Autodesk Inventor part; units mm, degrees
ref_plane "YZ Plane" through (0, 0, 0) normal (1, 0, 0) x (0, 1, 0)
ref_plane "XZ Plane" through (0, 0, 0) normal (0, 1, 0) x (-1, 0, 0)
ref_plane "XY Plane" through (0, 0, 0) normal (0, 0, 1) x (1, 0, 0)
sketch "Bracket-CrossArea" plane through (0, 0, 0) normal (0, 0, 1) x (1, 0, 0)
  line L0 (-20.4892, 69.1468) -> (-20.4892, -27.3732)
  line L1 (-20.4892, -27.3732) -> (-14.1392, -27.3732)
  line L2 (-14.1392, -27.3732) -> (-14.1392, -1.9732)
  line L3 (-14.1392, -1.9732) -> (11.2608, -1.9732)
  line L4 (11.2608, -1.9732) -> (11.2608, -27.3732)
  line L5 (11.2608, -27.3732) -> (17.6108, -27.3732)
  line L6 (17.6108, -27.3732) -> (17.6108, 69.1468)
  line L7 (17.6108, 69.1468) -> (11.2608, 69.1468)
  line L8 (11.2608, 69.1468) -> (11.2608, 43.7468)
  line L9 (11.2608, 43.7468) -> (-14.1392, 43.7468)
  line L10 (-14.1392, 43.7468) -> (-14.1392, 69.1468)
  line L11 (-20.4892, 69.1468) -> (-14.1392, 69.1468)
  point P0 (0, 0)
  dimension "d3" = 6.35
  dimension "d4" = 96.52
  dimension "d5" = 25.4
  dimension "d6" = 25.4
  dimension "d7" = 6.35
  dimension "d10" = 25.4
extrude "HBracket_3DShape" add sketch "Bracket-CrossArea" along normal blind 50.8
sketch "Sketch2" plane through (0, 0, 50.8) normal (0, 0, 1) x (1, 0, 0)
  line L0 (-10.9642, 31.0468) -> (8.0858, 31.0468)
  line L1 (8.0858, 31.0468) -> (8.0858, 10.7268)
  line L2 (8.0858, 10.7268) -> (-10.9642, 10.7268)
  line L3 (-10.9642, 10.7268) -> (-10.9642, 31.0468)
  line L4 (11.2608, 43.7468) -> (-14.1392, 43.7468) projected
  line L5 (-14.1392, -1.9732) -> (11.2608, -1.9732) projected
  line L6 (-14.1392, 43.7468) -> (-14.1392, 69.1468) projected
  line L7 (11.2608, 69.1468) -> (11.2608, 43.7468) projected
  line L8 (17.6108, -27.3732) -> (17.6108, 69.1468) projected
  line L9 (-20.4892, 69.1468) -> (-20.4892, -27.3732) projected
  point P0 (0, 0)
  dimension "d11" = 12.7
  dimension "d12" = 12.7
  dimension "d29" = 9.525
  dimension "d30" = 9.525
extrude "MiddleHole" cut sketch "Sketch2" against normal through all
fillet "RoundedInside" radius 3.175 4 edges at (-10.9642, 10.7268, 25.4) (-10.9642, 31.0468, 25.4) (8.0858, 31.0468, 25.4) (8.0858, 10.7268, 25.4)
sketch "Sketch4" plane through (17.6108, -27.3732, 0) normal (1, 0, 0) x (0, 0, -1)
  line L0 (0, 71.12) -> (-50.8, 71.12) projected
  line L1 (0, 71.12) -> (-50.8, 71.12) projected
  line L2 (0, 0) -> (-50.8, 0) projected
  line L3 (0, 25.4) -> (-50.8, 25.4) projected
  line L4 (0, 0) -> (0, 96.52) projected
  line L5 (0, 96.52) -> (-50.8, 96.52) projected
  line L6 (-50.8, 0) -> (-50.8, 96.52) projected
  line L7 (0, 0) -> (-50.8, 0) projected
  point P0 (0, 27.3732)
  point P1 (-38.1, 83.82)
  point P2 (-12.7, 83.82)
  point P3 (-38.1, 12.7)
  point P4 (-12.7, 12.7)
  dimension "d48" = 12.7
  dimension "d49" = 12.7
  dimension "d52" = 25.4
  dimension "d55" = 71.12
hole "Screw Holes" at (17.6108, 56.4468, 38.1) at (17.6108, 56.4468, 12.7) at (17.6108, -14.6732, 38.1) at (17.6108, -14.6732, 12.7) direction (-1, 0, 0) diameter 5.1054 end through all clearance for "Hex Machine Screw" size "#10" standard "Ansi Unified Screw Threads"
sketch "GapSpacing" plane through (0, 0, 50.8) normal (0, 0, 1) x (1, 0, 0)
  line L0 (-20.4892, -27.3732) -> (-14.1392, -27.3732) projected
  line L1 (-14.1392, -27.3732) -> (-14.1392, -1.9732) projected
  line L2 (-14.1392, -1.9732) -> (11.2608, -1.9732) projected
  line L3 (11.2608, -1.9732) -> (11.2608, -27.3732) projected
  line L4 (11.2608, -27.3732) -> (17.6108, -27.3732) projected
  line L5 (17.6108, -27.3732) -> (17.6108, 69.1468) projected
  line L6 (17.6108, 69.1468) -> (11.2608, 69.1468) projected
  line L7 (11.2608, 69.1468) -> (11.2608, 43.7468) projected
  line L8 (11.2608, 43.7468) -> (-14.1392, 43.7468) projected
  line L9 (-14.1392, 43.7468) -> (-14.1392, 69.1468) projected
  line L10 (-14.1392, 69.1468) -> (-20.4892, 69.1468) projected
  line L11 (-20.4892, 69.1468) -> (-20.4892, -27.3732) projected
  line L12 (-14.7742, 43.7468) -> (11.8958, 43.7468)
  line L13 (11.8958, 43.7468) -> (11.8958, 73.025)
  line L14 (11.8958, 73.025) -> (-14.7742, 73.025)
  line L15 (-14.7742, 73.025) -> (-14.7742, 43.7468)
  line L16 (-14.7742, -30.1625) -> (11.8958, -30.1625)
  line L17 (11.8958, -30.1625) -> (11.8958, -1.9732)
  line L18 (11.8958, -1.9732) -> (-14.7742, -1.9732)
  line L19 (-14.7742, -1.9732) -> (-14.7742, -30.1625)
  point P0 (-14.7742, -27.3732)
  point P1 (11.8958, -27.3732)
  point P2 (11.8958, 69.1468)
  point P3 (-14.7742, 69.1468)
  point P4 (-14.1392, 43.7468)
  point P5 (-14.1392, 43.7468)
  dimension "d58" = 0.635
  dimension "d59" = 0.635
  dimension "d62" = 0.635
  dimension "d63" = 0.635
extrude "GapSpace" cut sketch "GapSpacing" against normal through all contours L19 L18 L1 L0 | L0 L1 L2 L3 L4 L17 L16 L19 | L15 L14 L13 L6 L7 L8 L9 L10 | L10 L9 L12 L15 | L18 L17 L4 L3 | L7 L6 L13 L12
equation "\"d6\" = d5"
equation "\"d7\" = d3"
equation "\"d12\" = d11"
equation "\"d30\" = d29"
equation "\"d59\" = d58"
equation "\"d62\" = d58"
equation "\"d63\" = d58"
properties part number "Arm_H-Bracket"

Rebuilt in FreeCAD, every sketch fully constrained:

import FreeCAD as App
import Part
import Sketcher
Q = App.Units.Quantity


def edges_at(feature, points):
    """Names of the edges that pass closest to the given points."""
    edges = feature.Shape.Edges
    near = lambda p: min(range(len(edges)), key=lambda i: edges[i].distToShape(Part.Vertex(*p))[0])
    return sorted({f"Edge{near(p) + 1}" for p in points})

doc = App.newDocument("Part")
params = doc.addObject("Spreadsheet::Sheet", "Params")
for row, (alias, value) in enumerate([
    ("sketch1_width", "1 in"),
    ("sketch1_height", "3.8 in"),
    ("sketch1_width2", "0.25 in"),
    ("pad1_length", "2 in"),
    ("sketch2_height", "0.8 in"),
    ("sketch2_width", "0.75 in"),
    ("fillet_radius", "0.125 in"),
    ("sketch3_diameter", "0.201 in"),
    ("hole_diameter", "0.201 in"),
    ("sketch4_width", "1.05 in"),
], start=1):
    params.set(f"A{row}", alias)
    params.set(f"B{row}", "=" + value)
    params.setAlias(f"B{row}", alias)

body = doc.addObject("PartDesign::Body", "Body")

sketch1 = body.newObject("Sketcher::SketchObject", "Sketch")
sketch1.AttachmentSupport = (doc.getObject("XY_Plane"), [""])
sketch1.MapMode = "FlatFace"
sketch1.addGeometry(Part.LineSegment(App.Vector(-14.1392, 69.1468, 0), App.Vector(-20.4892, 69.1468, 0)), False)
sketch1.addGeometry(Part.LineSegment(App.Vector(-20.4892, 69.1468, 0), App.Vector(-20.4892, -27.3732, 0)), False)
sketch1.addGeometry(Part.LineSegment(App.Vector(-20.4892, -27.3732, 0), App.Vector(-14.1392, -27.3732, 0)), False)
sketch1.addGeometry(Part.LineSegment(App.Vector(-14.1392, -27.3732, 0), App.Vector(-14.1392, -1.9732, 0)), False)
sketch1.addGeometry(Part.LineSegment(App.Vector(-14.1392, -1.9732, 0), App.Vector(11.2608, -1.9732, 0)), False)
sketch1.addGeometry(Part.LineSegment(App.Vector(11.2608, -1.9732, 0), App.Vector(11.2608, -27.3732, 0)), False)
sketch1.addGeometry(Part.LineSegment(App.Vector(11.2608, -27.3732, 0), App.Vector(17.6108, -27.3732, 0)), False)
sketch1.addGeometry(Part.LineSegment(App.Vector(17.6108, -27.3732, 0), App.Vector(17.6108, 69.1468, 0)), False)
sketch1.addGeometry(Part.LineSegment(App.Vector(17.6108, 69.1468, 0), App.Vector(11.2608, 69.1468, 0)), False)
sketch1.addGeometry(Part.LineSegment(App.Vector(11.2608, 69.1468, 0), App.Vector(11.2608, 43.7468, 0)), False)
sketch1.addGeometry(Part.LineSegment(App.Vector(11.2608, 43.7468, 0), App.Vector(-14.1392, 43.7468, 0)), False)
sketch1.addGeometry(Part.LineSegment(App.Vector(-14.1392, 43.7468, 0), App.Vector(-14.1392, 69.1468, 0)), False)
sketch1.addConstraint(Sketcher.Constraint("Coincident", 0, 2, 1, 1))
sketch1.addConstraint(Sketcher.Constraint("Coincident", 1, 2, 2, 1))
sketch1.addConstraint(Sketcher.Constraint("Coincident", 2, 2, 3, 1))
sketch1.addConstraint(Sketcher.Constraint("Coincident", 3, 2, 4, 1))
sketch1.addConstraint(Sketcher.Constraint("Coincident", 4, 2, 5, 1))
sketch1.addConstraint(Sketcher.Constraint("Coincident", 5, 2, 6, 1))
sketch1.addConstraint(Sketcher.Constraint("Coincident", 6, 2, 7, 1))
sketch1.addConstraint(Sketcher.Constraint("Coincident", 7, 2, 8, 1))
sketch1.addConstraint(Sketcher.Constraint("Coincident", 8, 2, 9, 1))
sketch1.addConstraint(Sketcher.Constraint("Coincident", 9, 2, 10, 1))
sketch1.addConstraint(Sketcher.Constraint("Coincident", 10, 2, 11, 1))
sketch1.addConstraint(Sketcher.Constraint("Coincident", 11, 2, 0, 1))
sketch1.addConstraint(Sketcher.Constraint("Horizontal", 0))
sketch1.addConstraint(Sketcher.Constraint("Vertical", 1))
sketch1.addConstraint(Sketcher.Constraint("Horizontal", 2))
sketch1.addConstraint(Sketcher.Constraint("Vertical", 3))
sketch1.addConstraint(Sketcher.Constraint("Horizontal", 4))
sketch1.addConstraint(Sketcher.Constraint("Vertical", 5))
sketch1.addConstraint(Sketcher.Constraint("Horizontal", 6))
sketch1.addConstraint(Sketcher.Constraint("Vertical", 7))
sketch1.addConstraint(Sketcher.Constraint("Horizontal", 8))
sketch1.addConstraint(Sketcher.Constraint("Vertical", 9))
sketch1.addConstraint(Sketcher.Constraint("Horizontal", 10))
sketch1.addConstraint(Sketcher.Constraint("Vertical", 11))
sketch1.addConstraint(Sketcher.Constraint("Horizontal", 2, 2, 5, 2))
sketch1.addConstraint(Sketcher.Constraint("Horizontal", 0, 2, 7, 2))
sketch1.addConstraint(Sketcher.Constraint("Vertical", 5, 2, 8, 2))
sketch1.addConstraint(Sketcher.Constraint("Vertical", 3, 2, 10, 2))
sketch1.addConstraint(Sketcher.Constraint("Equal", 2, 6))
sketch1.addConstraint(Sketcher.Constraint("Equal", 10, 3))
sketch1.addConstraint(Sketcher.Constraint("Equal", 5, 9))
sketch1.addConstraint(Sketcher.Constraint("DistanceX", 4, 1, 4, 2, Q("1 in")))
sketch1.addConstraint(Sketcher.Constraint("DistanceY", 1, 2, 1, 1, Q("3.8 in")))
sketch1.addConstraint(Sketcher.Constraint("DistanceX", 0, 2, 0, 1, Q("0.25 in")))
sketch1.addConstraint(Sketcher.Constraint("DistanceX", 0, 2, -1, 1, Q("20.4892 mm")))
sketch1.addConstraint(Sketcher.Constraint("DistanceY", -1, 1, 0, 2, Q("69.1468 mm")))
sketch1.setExpression("Constraints[31]", "Params.sketch1_width")
sketch1.setExpression("Constraints[32]", "Params.sketch1_height")
sketch1.setExpression("Constraints[33]", "Params.sketch1_width2")
pad1 = body.newObject("PartDesign::Pad", "Pad")
pad1.Profile = sketch1
pad1.setExpression("Length", "Params.pad1_length")

sketch2 = body.newObject("Sketcher::SketchObject", "Sketch001")
sketch2.AttachmentSupport = (doc.getObject("XY_Plane"), [""])
sketch2.MapMode = "FlatFace"
sketch2.AttachmentOffset = App.Placement(App.Vector(0, 0, 2 * 25.4), App.Rotation())
sketch2.addGeometry(Part.LineSegment(App.Vector(8.0858, 31.0468, 0), App.Vector(-10.9642, 31.0468, 0)), False)
sketch2.addGeometry(Part.LineSegment(App.Vector(-10.9642, 31.0468, 0), App.Vector(-10.9642, 10.7268, 0)), False)
sketch2.addGeometry(Part.LineSegment(App.Vector(-10.9642, 10.7268, 0), App.Vector(8.0858, 10.7268, 0)), False)
sketch2.addGeometry(Part.LineSegment(App.Vector(8.0858, 10.7268, 0), App.Vector(8.0858, 31.0468, 0)), False)
sketch2.addConstraint(Sketcher.Constraint("Coincident", 0, 2, 1, 1))
sketch2.addConstraint(Sketcher.Constraint("Coincident", 1, 2, 2, 1))
sketch2.addConstraint(Sketcher.Constraint("Coincident", 2, 2, 3, 1))
sketch2.addConstraint(Sketcher.Constraint("Coincident", 3, 2, 0, 1))
sketch2.addConstraint(Sketcher.Constraint("Horizontal", 0))
sketch2.addConstraint(Sketcher.Constraint("Vertical", 1))
sketch2.addConstraint(Sketcher.Constraint("Horizontal", 2))
sketch2.addConstraint(Sketcher.Constraint("Vertical", 3))
sketch2.addConstraint(Sketcher.Constraint("DistanceY", 1, 2, 1, 1, Q("0.8 in")))
sketch2.addConstraint(Sketcher.Constraint("DistanceX", 0, 2, 0, 1, Q("0.75 in")))
sketch2.addConstraint(Sketcher.Constraint("DistanceX", 0, 2, -1, 1, Q("10.9642 mm")))
sketch2.addConstraint(Sketcher.Constraint("DistanceY", -1, 1, 0, 2, Q("31.0468 mm")))
sketch2.setExpression("Constraints[8]", "Params.sketch2_height")
sketch2.setExpression("Constraints[9]", "Params.sketch2_width")
pocket1 = body.newObject("PartDesign::Pocket", "Pocket")
pocket1.Profile = sketch2
pocket1.Type = "ThroughAll"
doc.recompute()

fillet = body.newObject("PartDesign::Fillet", "Fillet")
fillet.Base = (pocket1, edges_at(pocket1, [
    (-10.964, 10.727, 25.4),
    (-10.964, 31.047, 25.4),
    (8.086, 31.047, 25.4),
    (8.086, 10.727, 25.4),
]))
fillet.setExpression("Radius", "Params.fillet_radius")

sketch3 = body.newObject("Sketcher::SketchObject", "Sketch002")
sketch3.AttachmentSupport = (doc.getObject("YZ_Plane"), [""])
sketch3.MapMode = "FlatFace"
sketch3.AttachmentOffset = App.Placement(App.Vector(0, 0, 17.6108), App.Rotation())
sketch3.addGeometry(Part.Circle(App.Vector(56.4468, 38.1, 0), App.Vector(0, 0, 1), 2.5527), False)
sketch3.addGeometry(Part.Circle(App.Vector(56.4468, 12.7, 0), App.Vector(0, 0, 1), 2.5527), False)
sketch3.addGeometry(Part.Circle(App.Vector(-14.6732, 38.1, 0), App.Vector(0, 0, 1), 2.5527), False)
sketch3.addGeometry(Part.Circle(App.Vector(-14.6732, 12.7, 0), App.Vector(0, 0, 1), 2.5527), False)
sketch3.addConstraint(Sketcher.Constraint("Equal", 0, 1))
sketch3.addConstraint(Sketcher.Constraint("Equal", 1, 2))
sketch3.addConstraint(Sketcher.Constraint("Equal", 2, 3))
sketch3.addConstraint(Sketcher.Constraint("Horizontal", 0, 3, 2, 3))
sketch3.addConstraint(Sketcher.Constraint("Horizontal", 1, 3, 3, 3))
sketch3.addConstraint(Sketcher.Constraint("Vertical", 0, 3, 1, 3))
sketch3.addConstraint(Sketcher.Constraint("Vertical", 2, 3, 3, 3))
sketch3.addConstraint(Sketcher.Constraint("Diameter", 0, Q("0.201 in")))
sketch3.addConstraint(Sketcher.Constraint("DistanceY", 1, 3, 0, 3, Q("1 in")))
sketch3.addConstraint(Sketcher.Constraint("DistanceY", -1, 1, 0, 3, Q("1.5 in")))
sketch3.addConstraint(Sketcher.Constraint("DistanceX", 2, 3, 0, 3, Q("2.8 in")))
sketch3.addConstraint(Sketcher.Constraint("DistanceX", -1, 1, 0, 3, Q("56.4468 mm")))
sketch3.setExpression("Constraints[7]", "Params.sketch3_diameter")
doc.recompute()
hole = body.newObject("PartDesign::Hole", "Hole")
hole.Profile = sketch3
hole.ThreadType = "None"
hole.setExpression("Diameter", "Params.hole_diameter")
hole.DepthType = "ThroughAll"

sketch4 = body.newObject("Sketcher::SketchObject", "Sketch003")
sketch4.AttachmentSupport = (doc.getObject("XY_Plane"), [""])
sketch4.MapMode = "FlatFace"
sketch4.AttachmentOffset = App.Placement(App.Vector(0, 0, 2 * 25.4), App.Rotation())
sketch4.addGeometry(Part.LineSegment(App.Vector(-14.7742, -1.9732, 0), App.Vector(-14.7742, -30.1625, 0)), False)
sketch4.addGeometry(Part.LineSegment(App.Vector(-14.7742, -30.1625, 0), App.Vector(11.8958, -30.1625, 0)), False)
sketch4.addGeometry(Part.LineSegment(App.Vector(11.8958, -30.1625, 0), App.Vector(11.8958, -1.9732, 0)), False)
sketch4.addGeometry(Part.LineSegment(App.Vector(11.8958, -1.9732, 0), App.Vector(-14.7742, -1.9732, 0)), False)
sketch4.addGeometry(Part.LineSegment(App.Vector(-14.7742, 73.025, 0), App.Vector(-14.7742, 43.7468, 0)), False)
sketch4.addGeometry(Part.LineSegment(App.Vector(-14.7742, 43.7468, 0), App.Vector(11.8958, 43.7468, 0)), False)
sketch4.addGeometry(Part.LineSegment(App.Vector(11.8958, 43.7468, 0), App.Vector(11.8958, 73.025, 0)), False)
sketch4.addGeometry(Part.LineSegment(App.Vector(11.8958, 73.025, 0), App.Vector(-14.7742, 73.025, 0)), False)
sketch4.addConstraint(Sketcher.Constraint("Coincident", 0, 2, 1, 1))
sketch4.addConstraint(Sketcher.Constraint("Coincident", 1, 2, 2, 1))
sketch4.addConstraint(Sketcher.Constraint("Coincident", 2, 2, 3, 1))
sketch4.addConstraint(Sketcher.Constraint("Coincident", 3, 2, 0, 1))
sketch4.addConstraint(Sketcher.Constraint("Coincident", 4, 2, 5, 1))
sketch4.addConstraint(Sketcher.Constraint("Coincident", 5, 2, 6, 1))
sketch4.addConstraint(Sketcher.Constraint("Coincident", 6, 2, 7, 1))
sketch4.addConstraint(Sketcher.Constraint("Coincident", 7, 2, 4, 1))
sketch4.addConstraint(Sketcher.Constraint("Vertical", 0))
sketch4.addConstraint(Sketcher.Constraint("Horizontal", 1))
sketch4.addConstraint(Sketcher.Constraint("Vertical", 2))
sketch4.addConstraint(Sketcher.Constraint("Horizontal", 3))
sketch4.addConstraint(Sketcher.Constraint("Vertical", 4))
sketch4.addConstraint(Sketcher.Constraint("Horizontal", 5))
sketch4.addConstraint(Sketcher.Constraint("Vertical", 6))
sketch4.addConstraint(Sketcher.Constraint("Horizontal", 7))
sketch4.addConstraint(Sketcher.Constraint("Vertical", 3, 2, 4, 2))
sketch4.addConstraint(Sketcher.Constraint("Vertical", 2, 2, 5, 2))
sketch4.addConstraint(Sketcher.Constraint("DistanceX", 1, 1, 1, 2, Q("1.05 in")))
sketch4.addConstraint(Sketcher.Constraint("DistanceY", 3, 2, 4, 2, Q("1.8 in")))
sketch4.addConstraint(Sketcher.Constraint("DistanceY", 0, 2, -1, 1, Q("1.1875 in")))
sketch4.addConstraint(Sketcher.Constraint("DistanceY", -1, 1, 6, 2, Q("2.875 in")))
sketch4.addConstraint(Sketcher.Constraint("DistanceY", 0, 2, 0, 1, Q("28.1893 mm")))
sketch4.addConstraint(Sketcher.Constraint("DistanceX", 0, 2, -1, 1, Q("14.7742 mm")))
sketch4.setExpression("Constraints[18]", "Params.sketch4_width")
pocket2 = body.newObject("PartDesign::Pocket", "Pocket001")
pocket2.Profile = sketch4
pocket2.Type = "ThroughAll"

doc.recompute()
